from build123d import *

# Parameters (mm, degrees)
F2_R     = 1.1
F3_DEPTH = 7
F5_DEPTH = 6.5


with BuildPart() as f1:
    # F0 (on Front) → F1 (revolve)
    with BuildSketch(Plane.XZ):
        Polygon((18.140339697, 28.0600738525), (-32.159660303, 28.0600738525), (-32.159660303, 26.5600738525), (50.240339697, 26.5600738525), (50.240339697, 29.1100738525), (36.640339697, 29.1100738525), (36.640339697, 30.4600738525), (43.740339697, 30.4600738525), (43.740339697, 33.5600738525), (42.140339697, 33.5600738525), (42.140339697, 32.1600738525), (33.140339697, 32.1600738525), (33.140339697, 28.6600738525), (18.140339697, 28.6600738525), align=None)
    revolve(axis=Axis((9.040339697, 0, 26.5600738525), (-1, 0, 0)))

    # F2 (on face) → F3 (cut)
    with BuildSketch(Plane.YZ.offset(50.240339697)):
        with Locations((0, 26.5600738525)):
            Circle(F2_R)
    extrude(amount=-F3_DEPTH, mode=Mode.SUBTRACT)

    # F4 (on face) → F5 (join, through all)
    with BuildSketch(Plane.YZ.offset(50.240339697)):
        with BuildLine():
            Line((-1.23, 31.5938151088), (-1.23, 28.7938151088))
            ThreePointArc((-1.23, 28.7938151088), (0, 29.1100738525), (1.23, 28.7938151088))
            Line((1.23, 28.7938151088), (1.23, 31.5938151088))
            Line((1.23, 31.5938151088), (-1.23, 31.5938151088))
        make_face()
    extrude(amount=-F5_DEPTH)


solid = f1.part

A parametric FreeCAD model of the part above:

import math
import FreeCAD as App
import Part
import Sketcher

doc = App.newDocument("Part")
body = doc.addObject("PartDesign::Body", "Body")

sketch1 = doc.addObject("Sketcher::SketchObject", "Sketch")
body.addObject(sketch1)
sketch1.AttachmentSupport = (doc.XZ_Plane, [""])
sketch1.MapMode = "FlatFace"
sketch1.addGeometry([
    Part.LineSegment(App.Vector(18.14034, 28.060074, 0), App.Vector(-32.15966, 28.060074, 0)),
    Part.LineSegment(App.Vector(-32.15966, 28.060074, 0), App.Vector(-32.15966, 26.560074, 0)),
    Part.LineSegment(App.Vector(-32.15966, 26.560074, 0), App.Vector(50.24034, 26.560074, 0)),
    Part.LineSegment(App.Vector(50.24034, 26.560074, 0), App.Vector(50.24034, 29.110074, 0)),
    Part.LineSegment(App.Vector(50.24034, 29.110074, 0), App.Vector(36.64034, 29.110074, 0)),
    Part.LineSegment(App.Vector(36.64034, 29.110074, 0), App.Vector(36.64034, 30.460074, 0)),
    Part.LineSegment(App.Vector(36.64034, 30.460074, 0), App.Vector(43.74034, 30.460074, 0)),
    Part.LineSegment(App.Vector(43.74034, 30.460074, 0), App.Vector(43.74034, 33.560074, 0)),
    Part.LineSegment(App.Vector(43.74034, 33.560074, 0), App.Vector(42.14034, 33.560074, 0)),
    Part.LineSegment(App.Vector(42.14034, 33.560074, 0), App.Vector(42.14034, 32.160074, 0)),
    Part.LineSegment(App.Vector(42.14034, 32.160074, 0), App.Vector(33.14034, 32.160074, 0)),
    Part.LineSegment(App.Vector(33.14034, 32.160074, 0), App.Vector(33.14034, 28.660074, 0)),
    Part.LineSegment(App.Vector(33.14034, 28.660074, 0), App.Vector(18.14034, 28.660074, 0)),
    Part.LineSegment(App.Vector(18.14034, 28.660074, 0), App.Vector(18.14034, 28.060074, 0)),
], False)
sketch1.addGeometry(Part.LineSegment(App.Vector(50.24034, 26.560074, 0), App.Vector(-32.15966, 26.560074, 0)), True)
sketch1.addConstraint([
    Sketcher.Constraint("Coincident", 0, 2, 1, 1),
    Sketcher.Constraint("Coincident", 1, 2, 2, 1),
    Sketcher.Constraint("Coincident", 2, 2, 3, 1),
    Sketcher.Constraint("Coincident", 3, 2, 4, 1),
    Sketcher.Constraint("Coincident", 4, 2, 5, 1),
    Sketcher.Constraint("Coincident", 5, 2, 6, 1),
    Sketcher.Constraint("Coincident", 6, 2, 7, 1),
    Sketcher.Constraint("Coincident", 7, 2, 8, 1),
    Sketcher.Constraint("Coincident", 8, 2, 9, 1),
    Sketcher.Constraint("Coincident", 9, 2, 10, 1),
    Sketcher.Constraint("Coincident", 10, 2, 11, 1),
    Sketcher.Constraint("Coincident", 11, 2, 12, 1),
    Sketcher.Constraint("Coincident", 12, 2, 13, 1),
    Sketcher.Constraint("Coincident", 13, 2, 0, 1),
    Sketcher.Constraint("Horizontal", 0),
    Sketcher.Constraint("Vertical", 1),
    Sketcher.Constraint("Horizontal", 2),
    Sketcher.Constraint("Vertical", 3),
    Sketcher.Constraint("Horizontal", 4),
    Sketcher.Constraint("Vertical", 5),
    Sketcher.Constraint("Horizontal", 6),
    Sketcher.Constraint("Vertical", 7),
    Sketcher.Constraint("Horizontal", 8),
    Sketcher.Constraint("Vertical", 9),
    Sketcher.Constraint("Horizontal", 10),
    Sketcher.Constraint("Vertical", 11),
    Sketcher.Constraint("Horizontal", 12),
    Sketcher.Constraint("Vertical", 13),
    Sketcher.Constraint("Horizontal", 14),
    Sketcher.Constraint("Coincident", 14, 1, 2, 2),
    Sketcher.Constraint("Vertical", 0, 2, 14, 2),
    Sketcher.Constraint("DistanceX", 10, 2, 10, 1, 9.0),
    Sketcher.Constraint("DistanceX", 12, 2, 12, 1, 15.0),
    Sketcher.Constraint("DistanceX", 0, 2, 0, 1, 50.3),
    Sketcher.Constraint("DistanceX", 2, 1, 2, 2, 82.4),
    Sketcher.Constraint("DistanceX", 4, 2, 4, 1, 13.6),
    Sketcher.Constraint("DistanceX", 6, 1, 6, 2, 7.1),
    Sketcher.Constraint("DistanceY", 1, 2, 1, 1, 1.5),
    Sketcher.Constraint("DistanceY", 7, 1, 7, 2, 3.1),
    Sketcher.Constraint("DistanceY", 9, 2, 9, 1, 1.4),
    Sketcher.Constraint("DistanceY", 11, 2, 11, 1, 3.5),
    Sketcher.Constraint("DistanceY", 13, 2, 13, 1, 0.6),
    Sketcher.Constraint("DistanceY", 3, 1, 3, 2, 2.55),
    Sketcher.Constraint("DistanceX", 0, 2, -1, 1, 32.15966),
    Sketcher.Constraint("DistanceY", -1, 1, 0, 2, 28.060074),
])
revolution = doc.addObject("PartDesign::Revolution", "Revolution")
body.addObject(revolution)
revolution.Profile = sketch1
revolution.ReferenceAxis = (sketch1, ["Axis0"])
revolution.Angle = 360

sketch2 = doc.addObject("Sketcher::SketchObject", "Sketch001")
body.addObject(sketch2)
sketch2.AttachmentSupport = (doc.YZ_Plane, [""])
sketch2.MapMode = "FlatFace"
sketch2.AttachmentOffset = App.Placement(App.Vector(0, 0, 50.24034), App.Rotation())
sketch2.addGeometry(Part.Circle(App.Vector(0, 26.560074, 0), App.Vector(0, 0, 1), 1.1), False)
sketch2.addConstraint([
    Sketcher.Constraint("PointOnObject", 0, 3, -2),
    Sketcher.Constraint("Diameter", 0, 2.2),
    Sketcher.Constraint("DistanceY", -1, 1, 0, 3, 26.560074),
])
pocket1 = doc.addObject("PartDesign::Pocket", "Pocket")
body.addObject(pocket1)
pocket1.Profile = sketch2
pocket1.Length = 7

sketch3 = doc.addObject("Sketcher::SketchObject", "Sketch002")
body.addObject(sketch3)
sketch3.AttachmentSupport = (doc.YZ_Plane, [""])
sketch3.MapMode = "FlatFace"
sketch3.AttachmentOffset = App.Placement(App.Vector(0, 0, 50.24034), App.Rotation())
sketch3.addGeometry([
    Part.LineSegment(App.Vector(-1.23, 31.593815, 0), App.Vector(-1.23, 28.793815, 0)),
    Part.ArcOfCircle(Part.Circle(App.Vector(0, 26.560074, 0), App.Vector(0, 0, 1), 2.55), math.radians(61.160811), math.radians(118.839189)),
    Part.LineSegment(App.Vector(1.23, 28.793815, 0), App.Vector(1.23, 31.593815, 0)),
    Part.LineSegment(App.Vector(1.23, 31.593815, 0), App.Vector(-1.23, 31.593815, 0)),
], False)
sketch3.addConstraint([
    Sketcher.Constraint("Coincident", 0, 2, 1, 2),
    Sketcher.Constraint("Coincident", 1, 1, 2, 1),
    Sketcher.Constraint("Coincident", 2, 2, 3, 1),
    Sketcher.Constraint("Coincident", 3, 2, 0, 1),
    Sketcher.Constraint("Vertical", 0),
    Sketcher.Constraint("Vertical", 2),
    Sketcher.Constraint("Horizontal", 3),
    Sketcher.Constraint("Symmetric", 0, 2, 1, 1, -2),
    Sketcher.Constraint("Radius", 1, 2.55),
    Sketcher.Constraint("DistanceY", 0, 2, 0, 1, 2.8),
    Sketcher.Constraint("DistanceX", 3, 2, 3, 1, 2.46),
    Sketcher.Constraint("DistanceY", -1, 1, 1, 3, 26.560074),
])
pad1 = doc.addObject("PartDesign::Pad", "Pad")
body.addObject(pad1)
pad1.Profile = sketch3
pad1.Length = 6.5
pad1.Reversed = True

doc.recompute()
